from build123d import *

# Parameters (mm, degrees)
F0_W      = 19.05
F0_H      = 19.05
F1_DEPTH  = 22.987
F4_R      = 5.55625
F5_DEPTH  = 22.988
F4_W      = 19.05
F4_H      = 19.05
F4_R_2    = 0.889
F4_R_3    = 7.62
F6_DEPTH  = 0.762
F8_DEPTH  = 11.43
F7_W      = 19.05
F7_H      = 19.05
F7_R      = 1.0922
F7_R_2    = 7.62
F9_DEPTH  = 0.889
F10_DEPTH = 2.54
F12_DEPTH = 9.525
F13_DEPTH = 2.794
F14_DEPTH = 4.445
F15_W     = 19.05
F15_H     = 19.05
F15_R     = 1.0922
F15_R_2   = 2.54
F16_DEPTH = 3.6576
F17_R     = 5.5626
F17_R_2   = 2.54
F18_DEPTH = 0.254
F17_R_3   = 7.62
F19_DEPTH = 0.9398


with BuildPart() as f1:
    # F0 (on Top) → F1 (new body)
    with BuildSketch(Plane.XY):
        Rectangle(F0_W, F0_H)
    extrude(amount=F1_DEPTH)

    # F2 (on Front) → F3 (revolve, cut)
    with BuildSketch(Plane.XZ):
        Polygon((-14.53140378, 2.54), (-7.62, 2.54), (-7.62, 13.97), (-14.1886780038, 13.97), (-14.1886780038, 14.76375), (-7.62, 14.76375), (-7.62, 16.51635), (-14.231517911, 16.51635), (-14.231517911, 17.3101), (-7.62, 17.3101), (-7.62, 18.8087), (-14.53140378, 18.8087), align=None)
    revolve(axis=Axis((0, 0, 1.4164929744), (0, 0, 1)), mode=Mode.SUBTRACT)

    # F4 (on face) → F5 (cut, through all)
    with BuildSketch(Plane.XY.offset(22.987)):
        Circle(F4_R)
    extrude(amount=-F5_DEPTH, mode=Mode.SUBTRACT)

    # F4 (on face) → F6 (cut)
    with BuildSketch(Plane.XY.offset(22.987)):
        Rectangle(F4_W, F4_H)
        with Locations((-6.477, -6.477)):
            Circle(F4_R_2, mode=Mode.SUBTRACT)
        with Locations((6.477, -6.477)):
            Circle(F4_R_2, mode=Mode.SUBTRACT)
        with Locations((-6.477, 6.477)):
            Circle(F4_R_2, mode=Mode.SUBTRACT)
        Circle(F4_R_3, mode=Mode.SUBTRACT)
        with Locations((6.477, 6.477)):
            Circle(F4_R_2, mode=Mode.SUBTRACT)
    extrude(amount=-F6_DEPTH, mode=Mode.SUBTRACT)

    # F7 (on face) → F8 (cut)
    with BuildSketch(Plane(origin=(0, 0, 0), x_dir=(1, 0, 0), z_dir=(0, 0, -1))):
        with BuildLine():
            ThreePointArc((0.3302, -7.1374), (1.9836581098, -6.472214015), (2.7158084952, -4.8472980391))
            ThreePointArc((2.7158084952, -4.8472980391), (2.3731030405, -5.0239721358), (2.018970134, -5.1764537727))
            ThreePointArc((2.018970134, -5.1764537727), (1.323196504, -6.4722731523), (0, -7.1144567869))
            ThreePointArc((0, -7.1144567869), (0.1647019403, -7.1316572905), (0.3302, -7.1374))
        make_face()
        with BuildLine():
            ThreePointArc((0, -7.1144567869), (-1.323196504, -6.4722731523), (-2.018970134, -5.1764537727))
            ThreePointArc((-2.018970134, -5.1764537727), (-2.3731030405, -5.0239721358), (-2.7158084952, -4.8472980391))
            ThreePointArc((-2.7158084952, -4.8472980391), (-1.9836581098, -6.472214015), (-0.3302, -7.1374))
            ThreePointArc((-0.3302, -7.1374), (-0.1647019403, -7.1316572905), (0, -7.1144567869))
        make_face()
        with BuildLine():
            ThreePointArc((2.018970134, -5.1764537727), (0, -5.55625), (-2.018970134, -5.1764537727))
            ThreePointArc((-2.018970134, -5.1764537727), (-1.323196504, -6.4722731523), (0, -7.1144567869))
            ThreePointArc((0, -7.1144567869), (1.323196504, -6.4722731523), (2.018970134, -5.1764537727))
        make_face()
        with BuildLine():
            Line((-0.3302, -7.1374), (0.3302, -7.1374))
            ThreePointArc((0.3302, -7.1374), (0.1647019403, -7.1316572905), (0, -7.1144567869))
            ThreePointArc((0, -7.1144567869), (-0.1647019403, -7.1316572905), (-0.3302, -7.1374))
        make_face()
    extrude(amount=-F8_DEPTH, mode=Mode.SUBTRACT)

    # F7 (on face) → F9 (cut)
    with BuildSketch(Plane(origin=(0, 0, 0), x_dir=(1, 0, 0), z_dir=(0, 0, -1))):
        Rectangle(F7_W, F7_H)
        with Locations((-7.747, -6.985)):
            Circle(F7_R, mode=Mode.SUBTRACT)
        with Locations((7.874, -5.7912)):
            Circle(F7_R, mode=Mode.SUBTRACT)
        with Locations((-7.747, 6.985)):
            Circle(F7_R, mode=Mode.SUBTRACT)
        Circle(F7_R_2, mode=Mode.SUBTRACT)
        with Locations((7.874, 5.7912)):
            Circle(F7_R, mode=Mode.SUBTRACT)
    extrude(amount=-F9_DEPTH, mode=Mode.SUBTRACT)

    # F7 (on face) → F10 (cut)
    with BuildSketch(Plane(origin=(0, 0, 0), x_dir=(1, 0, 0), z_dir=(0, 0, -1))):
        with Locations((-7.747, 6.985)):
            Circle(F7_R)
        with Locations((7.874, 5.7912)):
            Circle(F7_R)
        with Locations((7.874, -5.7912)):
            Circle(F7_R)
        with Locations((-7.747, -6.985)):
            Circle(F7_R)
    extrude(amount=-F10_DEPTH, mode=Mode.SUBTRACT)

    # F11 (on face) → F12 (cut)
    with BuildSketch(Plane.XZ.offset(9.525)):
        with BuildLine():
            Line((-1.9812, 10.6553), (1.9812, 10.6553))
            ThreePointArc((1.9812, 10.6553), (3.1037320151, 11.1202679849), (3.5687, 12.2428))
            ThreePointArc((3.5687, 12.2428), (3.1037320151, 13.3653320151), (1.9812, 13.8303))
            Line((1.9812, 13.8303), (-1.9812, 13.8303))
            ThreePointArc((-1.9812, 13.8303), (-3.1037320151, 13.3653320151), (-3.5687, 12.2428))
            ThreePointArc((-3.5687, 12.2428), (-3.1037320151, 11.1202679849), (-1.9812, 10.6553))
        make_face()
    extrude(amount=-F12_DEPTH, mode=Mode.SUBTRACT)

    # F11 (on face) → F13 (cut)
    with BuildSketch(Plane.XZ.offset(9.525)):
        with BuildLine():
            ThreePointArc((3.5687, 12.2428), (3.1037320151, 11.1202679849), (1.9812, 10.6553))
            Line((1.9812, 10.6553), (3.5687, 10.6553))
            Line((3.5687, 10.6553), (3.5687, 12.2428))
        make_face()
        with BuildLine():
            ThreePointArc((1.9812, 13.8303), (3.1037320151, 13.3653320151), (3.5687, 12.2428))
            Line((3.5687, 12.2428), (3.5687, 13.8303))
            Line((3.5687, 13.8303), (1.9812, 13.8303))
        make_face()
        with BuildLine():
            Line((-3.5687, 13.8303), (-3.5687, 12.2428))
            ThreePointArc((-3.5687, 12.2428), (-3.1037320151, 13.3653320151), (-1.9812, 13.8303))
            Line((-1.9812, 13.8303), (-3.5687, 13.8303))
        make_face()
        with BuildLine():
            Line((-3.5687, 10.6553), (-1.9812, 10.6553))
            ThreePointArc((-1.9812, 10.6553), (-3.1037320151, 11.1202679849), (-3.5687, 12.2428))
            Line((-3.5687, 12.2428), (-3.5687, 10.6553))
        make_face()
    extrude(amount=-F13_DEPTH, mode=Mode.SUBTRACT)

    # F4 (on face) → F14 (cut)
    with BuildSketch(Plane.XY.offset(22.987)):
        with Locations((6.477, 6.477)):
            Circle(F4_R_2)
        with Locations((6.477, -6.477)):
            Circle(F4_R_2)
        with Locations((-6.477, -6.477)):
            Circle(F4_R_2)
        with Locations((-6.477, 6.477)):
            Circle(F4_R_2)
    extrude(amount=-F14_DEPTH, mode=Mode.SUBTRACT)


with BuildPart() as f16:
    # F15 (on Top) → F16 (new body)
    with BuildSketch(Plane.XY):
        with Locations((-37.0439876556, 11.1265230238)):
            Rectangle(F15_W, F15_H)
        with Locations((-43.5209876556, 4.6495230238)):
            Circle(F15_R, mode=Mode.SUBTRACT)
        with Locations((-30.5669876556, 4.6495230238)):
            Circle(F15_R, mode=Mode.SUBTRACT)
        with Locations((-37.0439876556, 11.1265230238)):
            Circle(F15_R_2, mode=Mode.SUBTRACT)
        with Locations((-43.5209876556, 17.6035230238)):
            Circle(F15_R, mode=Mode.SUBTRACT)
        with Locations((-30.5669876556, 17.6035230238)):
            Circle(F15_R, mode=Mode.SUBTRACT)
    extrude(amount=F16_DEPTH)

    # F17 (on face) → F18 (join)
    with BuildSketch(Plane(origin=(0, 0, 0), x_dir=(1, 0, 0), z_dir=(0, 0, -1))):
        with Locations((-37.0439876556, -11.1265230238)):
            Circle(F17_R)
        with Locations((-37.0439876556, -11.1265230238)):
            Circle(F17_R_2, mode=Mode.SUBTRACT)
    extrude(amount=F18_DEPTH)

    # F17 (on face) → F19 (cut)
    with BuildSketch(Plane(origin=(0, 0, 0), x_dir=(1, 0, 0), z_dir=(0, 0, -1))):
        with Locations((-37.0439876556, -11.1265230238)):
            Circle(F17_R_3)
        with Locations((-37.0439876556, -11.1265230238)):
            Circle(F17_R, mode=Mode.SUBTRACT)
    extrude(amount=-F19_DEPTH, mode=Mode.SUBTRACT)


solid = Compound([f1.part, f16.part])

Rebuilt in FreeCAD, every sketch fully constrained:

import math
import FreeCAD as App
import Part
import Sketcher
from FreeCAD import Vector
Q = App.Units.Quantity


def add_polygon(sketch, points):
    """Adds a closed chain of lines whose ends are joined by coincident constraints."""
    first, n = sketch.GeometryCount, len(points)
    for a, b in zip(points, points[1:] + points[:1]):
        sketch.addGeometry(Part.LineSegment(App.Vector(*a, 0), App.Vector(*b, 0)), False)
    for i in range(n):
        sketch.addConstraint(Sketcher.Constraint("Coincident", first + i, 2, first + (i + 1) % n, 1))

doc = App.newDocument("Part")
body = doc.addObject("PartDesign::Body", "Body")

# Sketch on XY plane
sketch1 = body.newObject("Sketcher::SketchObject", "Sketch")
sketch1.AttachmentSupport = (doc.getObject("XY_Plane"), [""])
sketch1.MapMode = "FlatFace"
add_polygon(sketch1, [(-9.525, 9.525), (-9.525, -9.525), (9.525, -9.525), (9.525, 9.525)])  # lines 0-3
sketch1.addConstraint([
    Sketcher.Constraint("Vertical", 0),
    Sketcher.Constraint("Horizontal", 1),
    Sketcher.Constraint("Vertical", 2),
    Sketcher.Constraint("Horizontal", 3),
    Sketcher.Constraint("Symmetric", 0, 2, 2, 2, -1, 1),
    Sketcher.Constraint("Equal", 3, 0),
    Sketcher.Constraint("DistanceX", 1, 1, 1, 2, Q("0.75 in")),
])
pad1 = body.newObject("PartDesign::Pad", "Pad")
pad1.Profile = sketch1
pad1.Length = Q("0.905 in")

# Sketch on XZ plane
sketch2 = body.newObject("Sketcher::SketchObject", "Sketch001")
sketch2.AttachmentSupport = (doc.getObject("XZ_Plane"), [""])
sketch2.MapMode = "FlatFace"
add_polygon(sketch2, [(-14.531404, 2.54), (-7.62, 2.54), (-7.62, 13.97), (-14.188678, 13.97), (-14.188678, 14.76375), (-7.62, 14.76375), (-7.62, 16.51635), (-14.231518, 16.51635), (-14.231518, 17.3101), (-7.62, 17.3101), (-7.62, 18.8087), (-14.531404, 18.8087)])  # lines 0-11
sketch2.addConstraint([
    Sketcher.Constraint("Horizontal", 0),
    Sketcher.Constraint("Vertical", 1),
    Sketcher.Constraint("Horizontal", 2),
    Sketcher.Constraint("Vertical", 3),
    Sketcher.Constraint("Horizontal", 4),
    Sketcher.Constraint("Vertical", 5),
    Sketcher.Constraint("Horizontal", 6),
    Sketcher.Constraint("Vertical", 7),
    Sketcher.Constraint("Horizontal", 8),
    Sketcher.Constraint("Vertical", 9),
    Sketcher.Constraint("Horizontal", 10),
    Sketcher.Constraint("Vertical", 11),
    Sketcher.Constraint("Vertical", 1, 2, 4, 2),
    Sketcher.Constraint("Vertical", 5, 2, 8, 2),
    Sketcher.Constraint("Equal", 3, 7),
    Sketcher.Constraint("DistanceY", 1, 1, 1, 2, Q("0.45 in")),
    Sketcher.Constraint("DistanceX", 0, 2, -1, 1, Q("0.3 in")),
    Sketcher.Constraint("DistanceY", -1, 1, 0, 2, Q("0.1 in")),
    Sketcher.Constraint("DistanceY", 3, 1, 3, 2, Q("0.03125 in")),
    Sketcher.Constraint("DistanceY", 5, 1, 5, 2, Q("0.069 in")),
    Sketcher.Constraint("DistanceY", 9, 1, 9, 2, Q("0.059 in")),
    Sketcher.Constraint("DistanceX", 2, 2, 2, 1, Q("6.568678 mm")),
    Sketcher.Constraint("DistanceX", 0, 1, 0, 2, Q("6.911404 mm")),
    Sketcher.Constraint("DistanceX", 6, 2, 6, 1, Q("6.611518 mm")),
])
groove = body.newObject("PartDesign::Groove", "Groove")
groove.Profile = sketch2
groove.ReferenceAxis = (sketch2, ["V_Axis"])
groove.Angle = 360

# Sketch on XY plane
sketch3 = body.newObject("Sketcher::SketchObject", "Sketch002")
sketch3.AttachmentSupport = (doc.getObject("XY_Plane"), [""])
sketch3.MapMode = "FlatFace"
sketch3.AttachmentOffset = App.Placement(Vector(0, 0, 0.905 * 25.4), App.Rotation())
sketch3.addGeometry(Part.Circle(Vector(0, 0, 0), Vector(0, 0, 1), 5.55625), False)
sketch3.addConstraint([
    Sketcher.Constraint("Coincident", 0, 3, -1, 1),
    Sketcher.Constraint("Diameter", 0, Q("0.4375 in")),
])
pocket1 = body.newObject("PartDesign::Pocket", "Pocket")
pocket1.Profile = sketch3
pocket1.Type = "ThroughAll"

# Sketch on XY plane
sketch4 = body.newObject("Sketcher::SketchObject", "Sketch003")
sketch4.AttachmentSupport = (doc.getObject("XY_Plane"), [""])
sketch4.MapMode = "FlatFace"
sketch4.AttachmentOffset = App.Placement(Vector(0, 0, 0.905 * 25.4), App.Rotation())
add_polygon(sketch4, [(-9.525, 9.525), (-9.525, -9.525), (9.525, -9.525), (9.525, 9.525)])  # lines 0-3
sketch4.addGeometry(Part.Circle(Vector(-6.477, -6.477, 0), Vector(0, 0, 1), 0.889), False)  # 4
sketch4.addGeometry(Part.Circle(Vector(6.477, -6.477, 0), Vector(0, 0, 1), 0.889), False)  # 5
sketch4.addGeometry(Part.Circle(Vector(-6.477, 6.477, 0), Vector(0, 0, 1), 0.889), False)  # 6
sketch4.addGeometry(Part.Circle(Vector(0, 0, 0), Vector(0, 0, 1), 7.62), False)  # 7
sketch4.addGeometry(Part.Circle(Vector(6.477, 6.477, 0), Vector(0, 0, 1), 0.889), False)  # 8
sketch4.addConstraint([
    Sketcher.Constraint("Vertical", 0),
    Sketcher.Constraint("Horizontal", 1),
    Sketcher.Constraint("Vertical", 2),
    Sketcher.Constraint("Horizontal", 3),
    Sketcher.Constraint("Coincident", 7, 3, -1, 1),
    Sketcher.Constraint("Equal", 4, 5),
    Sketcher.Constraint("Equal", 5, 6),
    Sketcher.Constraint("Equal", 6, 8),
    Sketcher.Constraint("Symmetric", 5, 3, 6, 3, -1, 1),
    Sketcher.Constraint("Symmetric", 4, 3, 8, 3, -1, 1),
    Sketcher.Constraint("Symmetric", 0, 2, 2, 2, -1, 1),
    Sketcher.Constraint("Symmetric", 4, 3, 5, 3, -2),
    Sketcher.Constraint("Equal", 3, 0),
    Sketcher.Constraint("Diameter", 7, Q("0.6 in")),
    Sketcher.Constraint("Diameter", 4, Q("0.07 in")),
    Sketcher.Constraint("DistanceX", 1, 1, 1, 2, Q("0.75 in")),
    Sketcher.Constraint("DistanceX", 4, 3, 5, 3, Q("0.51 in")),
    Sketcher.Constraint("DistanceY", 4, 3, 6, 3, Q("0.51 in")),
])
pocket2 = body.newObject("PartDesign::Pocket", "Pocket001")
pocket2.Profile = sketch4
pocket2.Length = Q("0.03 in")

# Sketch on XY plane
sketch5 = body.newObject("Sketcher::SketchObject", "Sketch004")
sketch5.AttachmentSupport = (doc.getObject("XY_Plane"), [""])
sketch5.MapMode = "FlatFace"
sketch5.addGeometry([
    Part.ArcOfCircle(Part.Circle(Vector(0.3302, 4.7498, 0), Vector(0, 0, 1), 2.3876), math.radians(2.340333), math.radians(90)),  # 0
    Part.ArcOfCircle(Part.Circle(Vector(0, 0, 0), Vector(0, 0, 1), 5.55625), math.radians(60.739283), math.radians(68.692745)),  # 1
    Part.ArcOfCircle(Part.Circle(Vector(0, 0, 0), Vector(0, 0, 1), 5.55625), math.radians(68.692745), math.radians(111.307255)),  # 2
    Part.ArcOfCircle(Part.Circle(Vector(0, 0, 0), Vector(0, 0, 1), 5.55625), math.radians(111.307255), math.radians(119.260717)),  # 3
    Part.ArcOfCircle(Part.Circle(Vector(-0.3302, 4.7498, 0), Vector(0, 0, 1), 2.3876), math.radians(90), math.radians(177.659667)),  # 4
    Part.LineSegment(Vector(-0.3302, 7.1374, 0), Vector(0.3302, 7.1374, 0)),  # 5
], False)
sketch5.addConstraint([
    Sketcher.Constraint("Coincident", 0, 1, 1, 1),
    Sketcher.Constraint("Tangent", 1, 2, 2, 1),
    Sketcher.Constraint("Tangent", 2, 2, 3, 1),
    Sketcher.Constraint("Coincident", 3, 2, 4, 2),
    Sketcher.Constraint("Tangent", 4, 1, 5, 1),
    Sketcher.Constraint("Tangent", 5, 2, 0, 2),
    Sketcher.Constraint("Horizontal", 5),
    Sketcher.Constraint("Coincident", 1, 3, -1, 1),
    Sketcher.Constraint("Coincident", 3, 3, -1, 1),
    Sketcher.Constraint("Equal", 0, 4),
    Sketcher.Constraint("Horizontal", 1, 2, 2, 2),
    Sketcher.Constraint("Horizontal", 0, 1, 3, 2),
    Sketcher.Constraint("Radius", 0, Q("0.094 in")),
    Sketcher.Constraint("Radius", 1, Q("0.21875 in")),
    Sketcher.Constraint("DistanceX", 5, 1, 5, 2, Q("0.026 in")),
    Sketcher.Constraint("DistanceY", -1, 1, 0, 3, Q("0.187 in")),
    Sketcher.Constraint("DistanceX", -1, 1, 1, 2, Q("2.01897 mm")),
])
pocket3 = body.newObject("PartDesign::Pocket", "Pocket002")
pocket3.Profile = sketch5
pocket3.Length = Q("0.45 in")
pocket3.Reversed = True

# Sketch on XY plane
sketch6 = body.newObject("Sketcher::SketchObject", "Sketch005")
sketch6.AttachmentSupport = (doc.getObject("XY_Plane"), [""])
sketch6.MapMode = "FlatFace"
add_polygon(sketch6, [(-9.525, -9.525), (-9.525, 9.525), (9.525, 9.525), (9.525, -9.525)])  # lines 0-3
sketch6.addGeometry(Part.Circle(Vector(-7.747, 6.985, 0), Vector(0, 0, 1), 1.0922), False)  # 4
sketch6.addGeometry(Part.Circle(Vector(7.874, 5.7912, 0), Vector(0, 0, 1), 1.0922), False)  # 5
sketch6.addGeometry(Part.Circle(Vector(0, 0, 0), Vector(0, 0, 1), 7.62), False)  # 6
sketch6.addGeometry(Part.Circle(Vector(-7.747, -6.985, 0), Vector(0, 0, 1), 1.0922), False)  # 7
sketch6.addGeometry(Part.Circle(Vector(7.874, -5.7912, 0), Vector(0, 0, 1), 1.0922), False)  # 8
sketch6.addConstraint([
    Sketcher.Constraint("Vertical", 0),
    Sketcher.Constraint("Horizontal", 1),
    Sketcher.Constraint("Vertical", 2),
    Sketcher.Constraint("Horizontal", 3),
    Sketcher.Constraint("Coincident", 6, 3, -1, 1),
    Sketcher.Constraint("Equal", 4, 5),
    Sketcher.Constraint("Equal", 5, 7),
    Sketcher.Constraint("Equal", 7, 8),
    Sketcher.Constraint("Symmetric", 0, 2, 2, 2, -1, 1),
    Sketcher.Constraint("Symmetric", 4, 3, 7, 3, -1),
    Sketcher.Constraint("Symmetric", 5, 3, 8, 3, -1),
    Sketcher.Constraint("Equal", 3, 0),
    Sketcher.Constraint("Diameter", 6, Q("0.6 in")),
    Sketcher.Constraint("Diameter", 4, Q("0.086 in")),
    Sketcher.Constraint("DistanceX", 1, 1, 1, 2, Q("0.75 in")),
    Sketcher.Constraint("DistanceY", 4, 3, 0, 2, Q("0.1 in")),
    Sketcher.Constraint("DistanceX", -1, 1, 5, 3, Q("0.31 in")),
    Sketcher.Constraint("DistanceX", 0, 2, 4, 3, Q("0.07 in")),
    Sketcher.Constraint("DistanceY", -1, 1, 5, 3, Q("0.228 in")),
])
pocket4 = body.newObject("PartDesign::Pocket", "Pocket003")
pocket4.Profile = sketch6
pocket4.Length = Q("0.035 in")
pocket4.Reversed = True

# Sketch on XY plane
sketch7 = body.newObject("Sketcher::SketchObject", "Sketch006")
sketch7.AttachmentSupport = (doc.getObject("XY_Plane"), [""])
sketch7.MapMode = "FlatFace"
sketch7.addGeometry([
    Part.Circle(Vector(-7.747, -6.985, 0), Vector(0, 0, 1), 1.0922),
    Part.Circle(Vector(7.874, -5.7912, 0), Vector(0, 0, 1), 1.0922),
    Part.Circle(Vector(7.874, 5.7912, 0), Vector(0, 0, 1), 1.0922),
    Part.Circle(Vector(-7.747, 6.985, 0), Vector(0, 0, 1), 1.0922),
], False)
sketch7.addConstraint([
    Sketcher.Constraint("Equal", 0, 1),
    Sketcher.Constraint("Equal", 1, 2),
    Sketcher.Constraint("Equal", 2, 3),
    Sketcher.Constraint("Symmetric", 1, 3, 2, 3, -1),
    Sketcher.Constraint("Symmetric", 0, 3, 3, 3, -1),
    Sketcher.Constraint("Diameter", 0, Q("0.086 in")),
    Sketcher.Constraint("DistanceX", -1, 1, 1, 3, Q("0.31 in")),
    Sketcher.Constraint("DistanceY", 0, 3, 3, 3, Q("0.55 in")),
    Sketcher.Constraint("DistanceX", 0, 3, -1, 1, Q("0.305 in")),
    Sketcher.Constraint("DistanceY", 1, 3, -1, 1, Q("0.228 in")),
])
pocket5 = body.newObject("PartDesign::Pocket", "Pocket004")
pocket5.Profile = sketch7
pocket5.Length = Q("0.1 in")
pocket5.Reversed = True

# Sketch on XZ plane
sketch8 = body.newObject("Sketcher::SketchObject", "Sketch007")
sketch8.AttachmentSupport = (doc.getObject("XZ_Plane"), [""])
sketch8.MapMode = "FlatFace"
sketch8.AttachmentOffset = App.Placement(Vector(0, 0, 0.375 * 25.4), App.Rotation())
sketch8.addGeometry([
    Part.LineSegment(Vector(-1.9812, 10.6553, 0), Vector(1.9812, 10.6553, 0)),  # 0
    Part.ArcOfCircle(Part.Circle(Vector(1.9812, 12.2428, 0), Vector(0, 0, 1), 1.5875), math.radians(-90), math.radians(0)),  # 1
    Part.ArcOfCircle(Part.Circle(Vector(1.9812, 12.2428, 0), Vector(0, 0, 1), 1.5875), math.radians(0), math.radians(90)),  # 2
    Part.LineSegment(Vector(1.9812, 13.8303, 0), Vector(-1.9812, 13.8303, 0)),  # 3
    Part.ArcOfCircle(Part.Circle(Vector(-1.9812, 12.2428, 0), Vector(0, 0, 1), 1.5875), math.radians(90), math.radians(180)),  # 4
    Part.ArcOfCircle(Part.Circle(Vector(-1.9812, 12.2428, 0), Vector(0, 0, 1), 1.5875), math.radians(180), math.radians(270)),  # 5
], False)
sketch8.addConstraint([
    Sketcher.Constraint("Tangent", 0, 2, 1, 1),
    Sketcher.Constraint("Tangent", 1, 2, 2, 1),
    Sketcher.Constraint("Tangent", 2, 2, 3, 1),
    Sketcher.Constraint("Tangent", 3, 2, 4, 1),
    Sketcher.Constraint("Tangent", 4, 2, 5, 1),
    Sketcher.Constraint("Tangent", 5, 2, 0, 1),
    Sketcher.Constraint("Horizontal", 0),
    Sketcher.Constraint("Horizontal", 3),
    Sketcher.Constraint("Equal", 1, 2),
    Sketcher.Constraint("Equal", 2, 4),
    Sketcher.Constraint("Symmetric", 1, 2, 4, 2, -2),
    Sketcher.Constraint("Horizontal", 5, 3, 1, 2),
    Sketcher.Constraint("Radius", 1, Q("0.0625 in")),
    Sketcher.Constraint("DistanceX", 0, 1, 0, 2, Q("0.156 in")),
    Sketcher.Constraint("DistanceY", -1, 1, 1, 3, Q("0.482 in")),
])
pocket6 = body.newObject("PartDesign::Pocket", "Pocket005")
pocket6.Profile = sketch8
pocket6.Length = Q("0.375 in")

# Sketch on XZ plane
sketch9 = body.newObject("Sketcher::SketchObject", "Sketch008")
sketch9.AttachmentSupport = (doc.getObject("XZ_Plane"), [""])
sketch9.MapMode = "FlatFace"
sketch9.AttachmentOffset = App.Placement(Vector(0, 0, 0.375 * 25.4), App.Rotation())
sketch9.addGeometry([
    Part.ArcOfCircle(Part.Circle(Vector(1.9812, 12.2428, 0), Vector(0, 0, 1), 1.5875), math.radians(-90), math.radians(0)),  # 0
    Part.LineSegment(Vector(1.9812, 10.6553, 0), Vector(3.5687, 10.6553, 0)),  # 1
    Part.LineSegment(Vector(3.5687, 10.6553, 0), Vector(3.5687, 12.2428, 0)),  # 2
    Part.ArcOfCircle(Part.Circle(Vector(1.9812, 12.2428, 0), Vector(0, 0, 1), 1.5875), math.radians(0), math.radians(90)),  # 3
    Part.LineSegment(Vector(3.5687, 12.2428, 0), Vector(3.5687, 13.8303, 0)),  # 4
    Part.LineSegment(Vector(3.5687, 13.8303, 0), Vector(1.9812, 13.8303, 0)),  # 5
    Part.LineSegment(Vector(-3.5687, 13.8303, 0), Vector(-3.5687, 12.2428, 0)),  # 6
    Part.ArcOfCircle(Part.Circle(Vector(-1.9812, 12.2428, 0), Vector(0, 0, 1), 1.5875), math.radians(90), math.radians(180)),  # 7
    Part.LineSegment(Vector(-1.9812, 13.8303, 0), Vector(-3.5687, 13.8303, 0)),  # 8
    Part.LineSegment(Vector(-3.5687, 10.6553, 0), Vector(-1.9812, 10.6553, 0)),  # 9
    Part.ArcOfCircle(Part.Circle(Vector(-1.9812, 12.2428, 0), Vector(0, 0, 1), 1.5875), math.radians(180), math.radians(270)),  # 10
    Part.LineSegment(Vector(-3.5687, 12.2428, 0), Vector(-3.5687, 10.6553, 0)),  # 11
], False)
sketch9.addConstraint([
    Sketcher.Constraint("Tangent", 0, 1, 1, 1),
    Sketcher.Constraint("Coincident", 1, 2, 2, 1),
    Sketcher.Constraint("Tangent", 2, 2, 0, 2),
    Sketcher.Constraint("Tangent", 3, 1, 4, 1),
    Sketcher.Constraint("Coincident", 4, 2, 5, 1),
    Sketcher.Constraint("Tangent", 5, 2, 3, 2),
    Sketcher.Constraint("Tangent", 6, 2, 7, 2),
    Sketcher.Constraint("Tangent", 7, 1, 8, 1),
    Sketcher.Constraint("Coincident", 8, 2, 6, 1),
    Sketcher.Constraint("Tangent", 9, 2, 10, 2),
    Sketcher.Constraint("Tangent", 10, 1, 11, 1),
    Sketcher.Constraint("Coincident", 11, 2, 9, 1),
    Sketcher.Constraint("Horizontal", 1),
    Sketcher.Constraint("Vertical", 2),
    Sketcher.Constraint("Vertical", 4),
    Sketcher.Constraint("Horizontal", 5),
    Sketcher.Constraint("Vertical", 6),
    Sketcher.Constraint("Horizontal", 8),
    Sketcher.Constraint("Horizontal", 9),
    Sketcher.Constraint("Vertical", 11),
    Sketcher.Constraint("Coincident", 3, 3, 0, 3),
    Sketcher.Constraint("Coincident", 10, 3, 7, 3),
    Sketcher.Constraint("Equal", 0, 3),
    Sketcher.Constraint("Equal", 3, 7),
    Sketcher.Constraint("Equal", 7, 10),
    Sketcher.Constraint("Symmetric", 0, 3, 7, 3, -2),
    Sketcher.Constraint("Radius", 0, Q("0.0625 in")),
    Sketcher.Constraint("DistanceX", -1, 1, 0, 3, Q("0.078 in")),
    Sketcher.Constraint("DistanceY", -1, 1, 0, 3, Q("0.482 in")),
])
pocket7 = body.newObject("PartDesign::Pocket", "Pocket006")
pocket7.Profile = sketch9
pocket7.Length = Q("0.11 in")

# Sketch on XY plane
sketch10 = body.newObject("Sketcher::SketchObject", "Sketch009")
sketch10.AttachmentSupport = (doc.getObject("XY_Plane"), [""])
sketch10.MapMode = "FlatFace"
sketch10.AttachmentOffset = App.Placement(Vector(0, 0, 0.905 * 25.4), App.Rotation())
sketch10.addGeometry([
    Part.Circle(Vector(6.477, 6.477, 0), Vector(0, 0, 1), 0.889),
    Part.Circle(Vector(6.477, -6.477, 0), Vector(0, 0, 1), 0.889),
    Part.Circle(Vector(-6.477, -6.477, 0), Vector(0, 0, 1), 0.889),
    Part.Circle(Vector(-6.477, 6.477, 0), Vector(0, 0, 1), 0.889),
], False)
sketch10.addConstraint([
    Sketcher.Constraint("Equal", 0, 1),
    Sketcher.Constraint("Equal", 1, 2),
    Sketcher.Constraint("Equal", 2, 3),
    Sketcher.Constraint("Symmetric", 0, 3, 2, 3, -1, 1),
    Sketcher.Constraint("Symmetric", 1, 3, 3, 3, -1, 1),
    Sketcher.Constraint("Symmetric", 1, 3, 2, 3, -2),
    Sketcher.Constraint("Diameter", 0, Q("0.07 in")),
    Sketcher.Constraint("DistanceY", 1, 3, 0, 3, Q("0.51 in")),
    Sketcher.Constraint("DistanceX", 2, 3, 1, 3, Q("0.51 in")),
])
pocket8 = body.newObject("PartDesign::Pocket", "Pocket007")
pocket8.Profile = sketch10
pocket8.Length = Q("0.175 in")
body2 = doc.addObject("PartDesign::Body", "Body001")

# Sketch on XY plane
sketch11 = body2.newObject("Sketcher::SketchObject", "Sketch010")
sketch11.AttachmentSupport = (doc.getObject("XY_Plane001"), [""])
sketch11.MapMode = "FlatFace"
add_polygon(sketch11, [(-46.568988, 20.651523), (-46.568988, 1.601523), (-27.518988, 1.601523), (-27.518988, 20.651523)])  # lines 0-3
sketch11.addGeometry(Part.Circle(Vector(-43.520988, 4.649523, 0), Vector(0, 0, 1), 1.0922), False)  # 4
sketch11.addGeometry(Part.Circle(Vector(-30.566988, 4.649523, 0), Vector(0, 0, 1), 1.0922), False)  # 5
sketch11.addGeometry(Part.Circle(Vector(-43.520988, 17.603523, 0), Vector(0, 0, 1), 1.0922), False)  # 6
sketch11.addGeometry(Part.Circle(Vector(-37.043988, 11.126523, 0), Vector(0, 0, 1), 2.54), False)  # 7
sketch11.addGeometry(Part.Circle(Vector(-30.566988, 17.603523, 0), Vector(0, 0, 1), 1.0922), False)  # 8
sketch11.addConstraint([
    Sketcher.Constraint("Vertical", 0),
    Sketcher.Constraint("Horizontal", 1),
    Sketcher.Constraint("Vertical", 2),
    Sketcher.Constraint("Horizontal", 3),
    Sketcher.Constraint("Equal", 4, 5),
    Sketcher.Constraint("Equal", 5, 6),
    Sketcher.Constraint("Equal", 6, 8),
    Sketcher.Constraint("Horizontal", 4, 3, 5, 3),
    Sketcher.Constraint("Horizontal", 6, 3, 8, 3),
    Sketcher.Constraint("Vertical", 4, 3, 6, 3),
    Sketcher.Constraint("Vertical", 5, 3, 8, 3),
    Sketcher.Constraint("Equal", 3, 0),
    Sketcher.Constraint("Diameter", 7, Q("0.2 in")),
    Sketcher.Constraint("Diameter", 4, Q("0.086 in")),
    Sketcher.Constraint("DistanceX", 1, 1, 1, 2, Q("0.75 in")),
    Sketcher.Constraint("DistanceX", 4, 3, 5, 3, Q("0.51 in")),
    Sketcher.Constraint("DistanceY", 4, 3, 6, 3, Q("0.51 in")),
    Sketcher.Constraint("DistanceX", 0, 2, 4, 3, Q("0.12 in")),
    Sketcher.Constraint("DistanceY", 0, 2, 4, 3, Q("0.12 in")),
    Sketcher.Constraint("DistanceX", 7, 3, 5, 3, Q("0.255 in")),
    Sketcher.Constraint("DistanceY", 5, 3, 7, 3, Q("0.255 in")),
    Sketcher.Constraint("DistanceX", 4, 3, -1, 1, Q("43.520988 mm")),
    Sketcher.Constraint("DistanceY", -1, 1, 4, 3, Q("4.649523 mm")),
])
pad2 = body2.newObject("PartDesign::Pad", "Pad001")
pad2.Profile = sketch11
pad2.Length = Q("0.144 in")

# Sketch on XY plane
sketch12 = body2.newObject("Sketcher::SketchObject", "Sketch011")
sketch12.AttachmentSupport = (doc.getObject("XY_Plane001"), [""])
sketch12.MapMode = "FlatFace"
sketch12.addGeometry([
    Part.Circle(Vector(-37.043988, 11.126523, 0), Vector(0, 0, 1), 5.5626),
    Part.Circle(Vector(-37.043988, 11.126523, 0), Vector(0, 0, 1), 2.54),
], False)
sketch12.addConstraint([
    Sketcher.Constraint("Coincident", 1, 3, 0, 3),
    Sketcher.Constraint("Diameter", 1, Q("0.2 in")),
    Sketcher.Constraint("Diameter", 0, Q("0.438 in")),
    Sketcher.Constraint("DistanceX", 0, 3, -1, 1, Q("37.043988 mm")),
    Sketcher.Constraint("DistanceY", -1, 1, 0, 3, Q("11.126523 mm")),
])
pad3 = body2.newObject("PartDesign::Pad", "Pad002")
pad3.Profile = sketch12
pad3.Length = Q("0.01 in")
pad3.Reversed = True

# Sketch on XY plane
sketch13 = body2.newObject("Sketcher::SketchObject", "Sketch012")
sketch13.AttachmentSupport = (doc.getObject("XY_Plane001"), [""])
sketch13.MapMode = "FlatFace"
sketch13.addGeometry([
    Part.Circle(Vector(-37.043988, 11.126523, 0), Vector(0, 0, 1), 7.62),
    Part.Circle(Vector(-37.043988, 11.126523, 0), Vector(0, 0, 1), 5.5626),
], False)
sketch13.addConstraint([
    Sketcher.Constraint("Coincident", 1, 3, 0, 3),
    Sketcher.Constraint("Diameter", 0, Q("0.6 in")),
    Sketcher.Constraint("Diameter", 1, Q("0.438 in")),
    Sketcher.Constraint("DistanceX", 0, 3, -1, 1, Q("37.043988 mm")),
    Sketcher.Constraint("DistanceY", -1, 1, 0, 3, Q("11.126523 mm")),
])
pocket9 = body2.newObject("PartDesign::Pocket", "Pocket008")
pocket9.Profile = sketch13
pocket9.Length = Q("0.037 in")
pocket9.Reversed = True

doc.recompute()
